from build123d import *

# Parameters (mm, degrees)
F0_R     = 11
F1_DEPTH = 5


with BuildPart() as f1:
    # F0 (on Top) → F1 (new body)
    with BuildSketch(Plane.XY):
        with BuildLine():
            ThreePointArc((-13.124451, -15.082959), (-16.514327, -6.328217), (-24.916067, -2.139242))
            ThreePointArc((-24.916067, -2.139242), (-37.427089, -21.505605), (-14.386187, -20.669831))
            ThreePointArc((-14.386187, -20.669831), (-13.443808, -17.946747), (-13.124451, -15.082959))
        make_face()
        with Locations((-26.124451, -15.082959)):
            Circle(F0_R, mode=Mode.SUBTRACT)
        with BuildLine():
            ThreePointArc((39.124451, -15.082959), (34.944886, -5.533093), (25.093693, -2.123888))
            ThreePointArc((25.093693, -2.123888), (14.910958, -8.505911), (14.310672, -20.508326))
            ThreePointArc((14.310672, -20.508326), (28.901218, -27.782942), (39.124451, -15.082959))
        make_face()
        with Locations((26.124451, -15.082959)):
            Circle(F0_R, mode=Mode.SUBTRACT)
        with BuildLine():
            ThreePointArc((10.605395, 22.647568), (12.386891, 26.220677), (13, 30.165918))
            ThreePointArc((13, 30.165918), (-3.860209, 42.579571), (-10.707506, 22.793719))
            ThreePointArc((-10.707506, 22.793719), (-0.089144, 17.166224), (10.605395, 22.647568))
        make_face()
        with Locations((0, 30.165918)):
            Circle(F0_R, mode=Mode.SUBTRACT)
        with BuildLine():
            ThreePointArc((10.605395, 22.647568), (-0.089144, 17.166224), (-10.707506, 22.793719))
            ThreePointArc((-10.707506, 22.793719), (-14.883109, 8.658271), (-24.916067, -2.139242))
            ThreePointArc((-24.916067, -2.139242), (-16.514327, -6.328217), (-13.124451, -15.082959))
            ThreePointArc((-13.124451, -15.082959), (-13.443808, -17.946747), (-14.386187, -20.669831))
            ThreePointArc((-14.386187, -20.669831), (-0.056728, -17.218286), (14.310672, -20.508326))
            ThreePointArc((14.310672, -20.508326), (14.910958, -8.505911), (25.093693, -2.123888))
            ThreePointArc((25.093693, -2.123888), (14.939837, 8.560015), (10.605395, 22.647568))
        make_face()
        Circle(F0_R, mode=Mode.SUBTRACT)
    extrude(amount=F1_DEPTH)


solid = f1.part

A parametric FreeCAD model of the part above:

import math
import FreeCAD as App
import Part
import Sketcher

doc = App.newDocument("Part")
params = doc.addObject("Spreadsheet::Sheet", "Params")
for row, (alias, value) in enumerate([
    ("sketch1_diameter", "22 mm"),
    ("sketch1_radius", "13 mm"),
    ("pad1_length", "5 mm"),
], start=1):
    params.set(f"A{row}", alias)
    params.set(f"B{row}", "=" + value)
    params.setAlias(f"B{row}", alias)

body = doc.addObject("PartDesign::Body", "Body")

# Sketch on XY plane
sketch1 = body.newObject("Sketcher::SketchObject", "Sketch")
sketch1.AttachmentSupport = (doc.getObject("XY_Plane"), [""])
sketch1.MapMode = "FlatFace"
sketch1.addGeometry(Part.ArcOfCircle(Part.Circle(App.Vector(-26, -15, 0), App.Vector(0, 0, 1), 13), math.radians(85), math.radians(335)), False)
sketch1.addGeometry(Part.ArcOfCircle(Part.Circle(App.Vector(0, -49, 0), App.Vector(0, 0, 1), 32), math.radians(64), math.radians(117)), False)
sketch1.addGeometry(Part.ArcOfCircle(Part.Circle(App.Vector(26, -15, 0), App.Vector(0, 0, 1), 13), math.radians(-155), math.radians(0)), False)
sketch1.addGeometry(Part.ArcOfCircle(Part.Circle(App.Vector(26, -15, 0), App.Vector(0, 0, 1), 13), math.radians(0), math.radians(95)), False)
sketch1.addGeometry(Part.ArcOfCircle(Part.Circle(App.Vector(43, 25, 0), App.Vector(0, 0, 1), 32), math.radians(-176), math.radians(-123)), False)
sketch1.addGeometry(Part.ArcOfCircle(Part.Circle(App.Vector(0, 30, 0), App.Vector(0, 0, 1), 13), math.radians(-35), math.radians(0)), False)
sketch1.addGeometry(Part.ArcOfCircle(Part.Circle(App.Vector(0, 30, 0), App.Vector(0, 0, 1), 13), math.radians(0), math.radians(215)), False)
sketch1.addGeometry(Part.ArcOfCircle(Part.Circle(App.Vector(-43, 25, 0), App.Vector(0, 0, 1), 32), math.radians(-56), math.radians(-3)), False)
sketch1.addGeometry(Part.Circle(App.Vector(-26, -15, 0), App.Vector(0, 0, 1), 11), False)
sketch1.addGeometry(Part.Circle(App.Vector(0, 0, 0), App.Vector(0, 0, 1), 11), False)
sketch1.addGeometry(Part.Circle(App.Vector(26, -15, 0), App.Vector(0, 0, 1), 11), False)
sketch1.addGeometry(Part.Circle(App.Vector(0, 30, 0), App.Vector(0, 0, 1), 11), False)
sketch1.addConstraint(Sketcher.Constraint("Coincident", 0, 2, 1, 2))
sketch1.addConstraint(Sketcher.Constraint("Coincident", 1, 1, 2, 1))
sketch1.addConstraint(Sketcher.Constraint("Tangent", 2, 2, 3, 1))
sketch1.addConstraint(Sketcher.Constraint("Coincident", 3, 2, 4, 2))
sketch1.addConstraint(Sketcher.Constraint("Coincident", 4, 1, 5, 1))
sketch1.addConstraint(Sketcher.Constraint("Tangent", 5, 2, 6, 1))
sketch1.addConstraint(Sketcher.Constraint("Coincident", 6, 2, 7, 2))
sketch1.addConstraint(Sketcher.Constraint("Coincident", 7, 1, 0, 1))
sketch1.addConstraint(Sketcher.Constraint("Coincident", 9, 3, -1, 1))
sketch1.addConstraint(Sketcher.Constraint("Coincident", 8, 3, 0, 3))
sketch1.addConstraint(Sketcher.Constraint("Coincident", 10, 3, 2, 3))
sketch1.addConstraint(Sketcher.Constraint("Coincident", 11, 3, 5, 3))
sketch1.addConstraint(Sketcher.Constraint("Equal", 0, 2))
sketch1.addConstraint(Sketcher.Constraint("Equal", 2, 3))
sketch1.addConstraint(Sketcher.Constraint("Equal", 1, 4))
sketch1.addConstraint(Sketcher.Constraint("Equal", 3, 5))
sketch1.addConstraint(Sketcher.Constraint("Equal", 5, 6))
sketch1.addConstraint(Sketcher.Constraint("Equal", 8, 9))
sketch1.addConstraint(Sketcher.Constraint("Equal", 9, 10))
sketch1.addConstraint(Sketcher.Constraint("Equal", 10, 11))
sketch1.addConstraint(Sketcher.Constraint("Symmetric", 0, 3, 2, 3, -2))
sketch1.addConstraint(Sketcher.Constraint("PointOnObject", 5, 3, -2))
sketch1.addConstraint(Sketcher.Constraint("Horizontal", 10, 3, 2, 2))
sketch1.addConstraint(Sketcher.Constraint("Horizontal", 11, 3, 5, 2))
sketch1.addConstraint(Sketcher.Constraint("Diameter", 8, 22.0))
sketch1.addConstraint(Sketcher.Constraint("Radius", 0, 13.0))
sketch1.addConstraint(Sketcher.Constraint("Radius", 1, 32.224338))
sketch1.addConstraint(Sketcher.Constraint("Radius", 7, 32.224333))
sketch1.addConstraint(Sketcher.Constraint("DistanceY", 1, 3, 4, 3, 74.2711))
sketch1.addConstraint(Sketcher.Constraint("DistanceX", 4, 1, 3, 2, 14.488298))
sketch1.addConstraint(Sketcher.Constraint("DistanceY", 6, 2, 6, 3, 7.372199))
sketch1.addConstraint(Sketcher.Constraint("DistanceX", 6, 2, 4, 1, 21.312901))
sketch1.addConstraint(Sketcher.Constraint("DistanceX", 0, 3, -1, 1, 26.124452))
sketch1.addConstraint(Sketcher.Constraint("DistanceY", 0, 3, -1, 1, 15.082959))
sketch1.addConstraint(Sketcher.Constraint("DistanceX", -1, 1, 4, 3, 42.755812))
sketch1.addConstraint(Sketcher.Constraint("DistanceY", 0, 2, -1, 1, 20.669831))
sketch1.addConstraint(Sketcher.Constraint("DistanceY", 7, 1, -1, 1, 2.139242))
sketch1.setExpression("Constraints[24]", "Params.sketch1_diameter")
sketch1.setExpression("Constraints[25]", "Params.sketch1_radius")
pad1 = body.newObject("PartDesign::Pad", "Pad")
pad1.Profile = sketch1
pad1.setExpression("Length", "Params.pad1_length")

doc.recompute()
